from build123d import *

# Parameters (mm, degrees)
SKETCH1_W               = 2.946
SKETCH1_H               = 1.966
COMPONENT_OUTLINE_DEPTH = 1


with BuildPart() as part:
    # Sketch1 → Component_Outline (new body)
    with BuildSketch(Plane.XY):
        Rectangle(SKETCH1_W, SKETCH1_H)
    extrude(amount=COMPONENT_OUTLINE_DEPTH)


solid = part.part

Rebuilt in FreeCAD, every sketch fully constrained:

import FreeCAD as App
import Part
import Sketcher

V = App.Vector
Q = App.Units.Quantity


def add_polygon(sketch, points):
    """Adds a closed chain of lines whose ends are joined by coincident constraints."""
    first, n = sketch.GeometryCount, len(points)
    for a, b in zip(points, points[1:] + points[:1]):
        sketch.addGeometry(Part.LineSegment(App.Vector(*a, 0), App.Vector(*b, 0)), False)
    for i in range(n):
        sketch.addConstraint(Sketcher.Constraint("Coincident", first + i, 2, first + (i + 1) % n, 1))

doc = App.newDocument("Part")
params = doc.addObject("Spreadsheet::Sheet", "Params")
for row, (alias, value) in enumerate([
    ("pad1_length", "1 mm"),
], start=1):
    params.set(f"A{row}", alias)
    params.set(f"B{row}", "=" + value)
    params.setAlias(f"B{row}", alias)

body = doc.addObject("PartDesign::Body", "Body")

# Sketch on XY plane
sketch1 = body.newObject("Sketcher::SketchObject", "Sketch")
sketch1.AttachmentSupport = (doc.getObject("XY_Plane"), [""])
sketch1.MapMode = "FlatFace"
add_polygon(sketch1, [(-1.5, 1), (-1.5, -1), (1.5, -1), (1.5, 1)])  # lines 0-3
sketch1.addConstraint([
    Sketcher.Constraint("Vertical", 0),
    Sketcher.Constraint("Horizontal", 1),
    Sketcher.Constraint("Vertical", 2),
    Sketcher.Constraint("Horizontal", 3),
    Sketcher.Constraint("Symmetric", 0, 2, 2, 2, -1, 1),
    Sketcher.Constraint("DistanceX", 1, 1, 1, 2, Q("2.946 mm")),
    Sketcher.Constraint("DistanceY", 0, 2, 0, 1, Q("1.966 mm")),
])
pad1 = body.newObject("PartDesign::Pad", "Pad")
pad1.Profile = sketch1
pad1.setExpression("Length", "Params.pad1_length")

doc.recompute()
